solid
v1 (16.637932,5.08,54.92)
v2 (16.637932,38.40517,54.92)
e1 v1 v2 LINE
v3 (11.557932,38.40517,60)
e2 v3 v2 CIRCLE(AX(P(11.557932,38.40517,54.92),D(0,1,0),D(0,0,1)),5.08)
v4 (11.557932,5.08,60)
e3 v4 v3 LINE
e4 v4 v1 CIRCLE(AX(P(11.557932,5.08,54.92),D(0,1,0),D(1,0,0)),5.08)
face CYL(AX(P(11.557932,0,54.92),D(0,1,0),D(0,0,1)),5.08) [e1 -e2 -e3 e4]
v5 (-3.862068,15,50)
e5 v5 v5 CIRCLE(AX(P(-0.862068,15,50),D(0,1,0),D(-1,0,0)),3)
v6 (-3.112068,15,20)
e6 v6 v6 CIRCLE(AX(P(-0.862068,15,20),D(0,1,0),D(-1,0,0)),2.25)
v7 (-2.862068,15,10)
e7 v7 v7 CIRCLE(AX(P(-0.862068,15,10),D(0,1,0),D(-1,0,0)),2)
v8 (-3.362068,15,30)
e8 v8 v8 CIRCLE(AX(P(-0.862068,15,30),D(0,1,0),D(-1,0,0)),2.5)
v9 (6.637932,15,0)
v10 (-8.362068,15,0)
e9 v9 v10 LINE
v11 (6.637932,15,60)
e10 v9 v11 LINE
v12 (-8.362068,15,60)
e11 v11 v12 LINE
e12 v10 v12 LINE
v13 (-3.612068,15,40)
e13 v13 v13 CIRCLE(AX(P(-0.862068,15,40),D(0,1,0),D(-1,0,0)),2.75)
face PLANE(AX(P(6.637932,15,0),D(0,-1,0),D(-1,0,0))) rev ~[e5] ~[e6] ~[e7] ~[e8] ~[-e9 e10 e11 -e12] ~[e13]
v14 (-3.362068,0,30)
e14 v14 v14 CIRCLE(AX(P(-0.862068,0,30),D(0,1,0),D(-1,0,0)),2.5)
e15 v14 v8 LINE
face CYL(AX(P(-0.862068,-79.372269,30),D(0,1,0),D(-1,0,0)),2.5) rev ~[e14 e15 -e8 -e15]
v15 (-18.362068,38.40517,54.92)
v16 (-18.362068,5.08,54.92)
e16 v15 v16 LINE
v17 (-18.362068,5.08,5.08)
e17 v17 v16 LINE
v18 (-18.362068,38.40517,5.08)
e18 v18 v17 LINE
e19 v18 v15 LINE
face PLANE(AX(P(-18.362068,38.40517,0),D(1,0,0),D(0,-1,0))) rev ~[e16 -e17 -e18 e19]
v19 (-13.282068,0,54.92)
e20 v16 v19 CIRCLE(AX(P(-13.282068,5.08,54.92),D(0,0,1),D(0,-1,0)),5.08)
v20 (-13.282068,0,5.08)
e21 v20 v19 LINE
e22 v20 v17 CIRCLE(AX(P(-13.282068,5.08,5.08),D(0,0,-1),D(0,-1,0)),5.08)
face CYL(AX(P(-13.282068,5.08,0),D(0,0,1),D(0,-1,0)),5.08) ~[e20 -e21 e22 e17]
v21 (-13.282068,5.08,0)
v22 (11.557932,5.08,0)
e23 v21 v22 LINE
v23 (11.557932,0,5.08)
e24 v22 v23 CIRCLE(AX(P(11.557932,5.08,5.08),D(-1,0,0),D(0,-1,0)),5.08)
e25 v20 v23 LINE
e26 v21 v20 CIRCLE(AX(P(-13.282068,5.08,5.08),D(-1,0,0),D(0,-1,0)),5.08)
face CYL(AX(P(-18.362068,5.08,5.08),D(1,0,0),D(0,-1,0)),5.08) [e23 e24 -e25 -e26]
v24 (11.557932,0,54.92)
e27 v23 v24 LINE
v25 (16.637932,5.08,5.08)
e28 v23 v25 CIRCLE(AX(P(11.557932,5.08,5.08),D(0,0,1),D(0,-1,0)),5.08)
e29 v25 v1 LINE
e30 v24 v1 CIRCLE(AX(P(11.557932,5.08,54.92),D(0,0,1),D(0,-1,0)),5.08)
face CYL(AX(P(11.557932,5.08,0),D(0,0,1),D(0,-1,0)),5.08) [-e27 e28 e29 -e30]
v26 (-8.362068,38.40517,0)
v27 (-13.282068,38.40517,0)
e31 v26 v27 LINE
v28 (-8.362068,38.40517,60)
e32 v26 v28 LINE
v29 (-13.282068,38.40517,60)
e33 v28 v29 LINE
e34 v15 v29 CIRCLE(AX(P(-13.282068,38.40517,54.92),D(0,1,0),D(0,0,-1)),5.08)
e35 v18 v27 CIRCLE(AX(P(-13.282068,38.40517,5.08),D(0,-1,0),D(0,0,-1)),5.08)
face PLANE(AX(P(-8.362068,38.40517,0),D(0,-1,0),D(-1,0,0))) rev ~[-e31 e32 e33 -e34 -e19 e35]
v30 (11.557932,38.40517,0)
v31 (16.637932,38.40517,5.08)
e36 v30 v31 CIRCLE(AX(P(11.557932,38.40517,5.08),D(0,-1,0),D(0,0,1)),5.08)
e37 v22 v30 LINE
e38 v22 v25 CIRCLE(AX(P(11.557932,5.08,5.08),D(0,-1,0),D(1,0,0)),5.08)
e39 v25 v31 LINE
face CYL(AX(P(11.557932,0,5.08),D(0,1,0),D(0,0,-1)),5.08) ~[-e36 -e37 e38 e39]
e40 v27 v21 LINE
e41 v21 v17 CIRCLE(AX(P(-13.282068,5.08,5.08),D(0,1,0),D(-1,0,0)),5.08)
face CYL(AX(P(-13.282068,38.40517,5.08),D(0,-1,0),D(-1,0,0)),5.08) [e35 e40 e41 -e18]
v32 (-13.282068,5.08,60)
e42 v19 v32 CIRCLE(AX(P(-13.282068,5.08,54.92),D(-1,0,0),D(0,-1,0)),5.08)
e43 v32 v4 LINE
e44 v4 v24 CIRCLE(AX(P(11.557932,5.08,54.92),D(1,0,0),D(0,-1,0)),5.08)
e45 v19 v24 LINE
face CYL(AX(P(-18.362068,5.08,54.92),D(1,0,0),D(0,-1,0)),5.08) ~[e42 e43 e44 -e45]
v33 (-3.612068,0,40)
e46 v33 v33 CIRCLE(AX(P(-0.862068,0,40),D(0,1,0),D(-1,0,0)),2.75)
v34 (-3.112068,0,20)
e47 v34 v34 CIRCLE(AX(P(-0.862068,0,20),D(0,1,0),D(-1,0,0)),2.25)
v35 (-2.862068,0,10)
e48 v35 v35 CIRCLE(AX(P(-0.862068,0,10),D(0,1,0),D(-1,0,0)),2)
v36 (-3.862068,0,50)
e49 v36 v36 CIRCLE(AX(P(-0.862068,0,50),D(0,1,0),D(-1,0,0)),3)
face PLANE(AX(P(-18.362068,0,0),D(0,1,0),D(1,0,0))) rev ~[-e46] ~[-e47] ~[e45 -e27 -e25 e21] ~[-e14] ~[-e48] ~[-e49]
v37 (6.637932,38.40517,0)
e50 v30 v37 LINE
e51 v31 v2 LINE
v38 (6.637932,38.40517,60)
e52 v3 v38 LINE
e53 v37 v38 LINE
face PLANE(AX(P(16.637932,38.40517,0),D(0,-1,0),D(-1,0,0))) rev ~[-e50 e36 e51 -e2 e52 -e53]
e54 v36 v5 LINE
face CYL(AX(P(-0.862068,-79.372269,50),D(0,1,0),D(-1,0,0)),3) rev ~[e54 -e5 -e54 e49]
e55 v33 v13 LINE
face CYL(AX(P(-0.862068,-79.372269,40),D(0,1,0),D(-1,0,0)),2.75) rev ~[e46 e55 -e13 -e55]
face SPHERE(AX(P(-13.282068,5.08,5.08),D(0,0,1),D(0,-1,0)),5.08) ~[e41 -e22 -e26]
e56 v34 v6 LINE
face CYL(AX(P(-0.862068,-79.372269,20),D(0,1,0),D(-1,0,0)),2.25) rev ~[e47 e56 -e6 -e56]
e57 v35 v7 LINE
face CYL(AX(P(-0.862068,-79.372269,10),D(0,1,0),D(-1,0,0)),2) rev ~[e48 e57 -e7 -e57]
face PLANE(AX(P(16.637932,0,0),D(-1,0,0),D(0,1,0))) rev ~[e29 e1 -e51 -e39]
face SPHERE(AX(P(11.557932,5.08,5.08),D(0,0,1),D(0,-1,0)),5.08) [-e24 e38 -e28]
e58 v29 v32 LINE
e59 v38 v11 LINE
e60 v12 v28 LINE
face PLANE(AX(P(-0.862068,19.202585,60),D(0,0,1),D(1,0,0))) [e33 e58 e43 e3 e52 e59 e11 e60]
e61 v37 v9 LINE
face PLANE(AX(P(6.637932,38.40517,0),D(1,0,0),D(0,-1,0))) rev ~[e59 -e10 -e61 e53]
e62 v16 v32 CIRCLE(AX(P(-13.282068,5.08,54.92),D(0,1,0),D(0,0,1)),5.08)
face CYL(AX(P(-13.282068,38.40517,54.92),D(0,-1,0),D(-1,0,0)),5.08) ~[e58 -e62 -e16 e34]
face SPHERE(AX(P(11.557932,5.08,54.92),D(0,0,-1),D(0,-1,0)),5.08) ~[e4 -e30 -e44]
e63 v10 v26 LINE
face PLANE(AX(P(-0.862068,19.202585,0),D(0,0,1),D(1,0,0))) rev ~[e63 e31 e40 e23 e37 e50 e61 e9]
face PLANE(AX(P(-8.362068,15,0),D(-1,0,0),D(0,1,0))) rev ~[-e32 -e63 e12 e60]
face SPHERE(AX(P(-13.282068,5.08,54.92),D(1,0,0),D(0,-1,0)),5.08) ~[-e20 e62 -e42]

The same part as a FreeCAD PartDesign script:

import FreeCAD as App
import Part
import Sketcher
from FreeCAD import Vector
Q = App.Units.Quantity


def edges_at(feature, points):
    """Names of the edges that pass closest to the given points."""
    edges = feature.Shape.Edges
    near = lambda p: min(range(len(edges)), key=lambda i: edges[i].distToShape(Part.Vertex(*p))[0])
    return sorted({f"Edge{near(p) + 1}" for p in points})


def add_polygon(sketch, points):
    """Adds a closed chain of lines whose ends are joined by coincident constraints."""
    first, n = sketch.GeometryCount, len(points)
    for a, b in zip(points, points[1:] + points[:1]):
        sketch.addGeometry(Part.LineSegment(App.Vector(*a, 0), App.Vector(*b, 0)), False)
    for i in range(n):
        sketch.addConstraint(Sketcher.Constraint("Coincident", first + i, 2, first + (i + 1) % n, 1))

doc = App.newDocument("Part")
params = doc.addObject("Spreadsheet::Sheet", "Params")
for row, (alias, value) in enumerate([
    ("sketch1_width", "35 mm"),
    ("sketch1_width2", "10 mm"),
    ("pad1_length", "60 mm"),
    ("sketch2_diameter", "4 mm"),
    ("hole_diameter", "4 mm"),
    ("sketch3_diameter", "4.5 mm"),
    ("hole2_diameter", "4.5 mm"),
    ("sketch4_diameter", "5 mm"),
    ("hole3_diameter", "5 mm"),
    ("sketch5_diameter", "5.5 mm"),
    ("hole4_diameter", "5.5 mm"),
    ("sketch6_diameter", "6 mm"),
    ("hole5_diameter", "6 mm"),
    ("fillet_radius", "5.08 mm"),
], start=1):
    params.set(f"A{row}", alias)
    params.set(f"B{row}", "=" + value)
    params.setAlias(f"B{row}", alias)

body = doc.addObject("PartDesign::Body", "Body")

sketch1 = doc.addObject("Sketcher::SketchObject", "Sketch")
body.addObject(sketch1)
sketch1.AttachmentSupport = (doc.XY_Plane, [""])
sketch1.MapMode = "FlatFace"
add_polygon(sketch1, [(-18.362068, 0), (16.637932, 0), (16.637932, 38.40517), (6.637932, 38.40517), (6.637932, 15), (-8.362068, 15), (-8.362068, 38.40517), (-18.362068, 38.40517)])
sketch1.addConstraint([
    Sketcher.Constraint("Horizontal", 0),
    Sketcher.Constraint("Vertical", 1),
    Sketcher.Constraint("Horizontal", 2),
    Sketcher.Constraint("Vertical", 3),
    Sketcher.Constraint("Horizontal", 4),
    Sketcher.Constraint("Vertical", 5),
    Sketcher.Constraint("Horizontal", 6),
    Sketcher.Constraint("Vertical", 7),
    Sketcher.Constraint("PointOnObject", 0, 2, -1),
    Sketcher.Constraint("Horizontal", 2, 2, 5, 2),
    Sketcher.Constraint("Equal", 2, 6),
    Sketcher.Constraint("DistanceX", 0, 1, 0, 2, Q("35 mm")),
    Sketcher.Constraint("DistanceX", 2, 2, 2, 1, Q("10 mm")),
    Sketcher.Constraint("DistanceY", -1, 1, 3, 2, Q("15 mm")),
    Sketcher.Constraint("DistanceY", 1, 1, 1, 2, Q("38.40517 mm")),
    Sketcher.Constraint("DistanceX", -1, 1, 0, 2, Q("16.637932 mm")),
])
sketch1.setExpression("Constraints[19]", "Params.sketch1_width")
sketch1.setExpression("Constraints[20]", "Params.sketch1_width2")
pad1 = doc.addObject("PartDesign::Pad", "Pad")
body.addObject(pad1)
pad1.Profile = sketch1
pad1.setExpression("Length", "Params.pad1_length")

sketch2 = doc.addObject("Sketcher::SketchObject", "Sketch001")
body.addObject(sketch2)
sketch2.AttachmentSupport = (doc.XZ_Plane, [""])
sketch2.MapMode = "FlatFace"
sketch2.addGeometry(Part.Circle(Vector(-0.862068, 10, 0), Vector(0, 0, 1), 2), False)
sketch2.addConstraint([
    Sketcher.Constraint("Diameter", 0, Q("4 mm")),
    Sketcher.Constraint("DistanceY", -1, 1, 0, 3, Q("10 mm")),
    Sketcher.Constraint("DistanceX", 0, 3, -1, 1, Q("0.862068 mm")),
])
sketch2.setExpression("Constraints[0]", "Params.sketch2_diameter")
doc.recompute()
hole = doc.addObject("PartDesign::Hole", "Hole")
body.addObject(hole)
hole.Profile = sketch2
hole.ThreadType = "None"
hole.setExpression("Diameter", "Params.hole_diameter")
hole.DepthType = "ThroughAll"

sketch3 = doc.addObject("Sketcher::SketchObject", "Sketch002")
body.addObject(sketch3)
sketch3.AttachmentSupport = (doc.XZ_Plane, [""])
sketch3.MapMode = "FlatFace"
sketch3.addGeometry(Part.Circle(Vector(-0.862068, 20, 0), Vector(0, 0, 1), 2.25), False)
sketch3.addConstraint([
    Sketcher.Constraint("Diameter", 0, Q("4.5 mm")),
    Sketcher.Constraint("DistanceY", -1, 1, 0, 3, Q("20 mm")),
    Sketcher.Constraint("DistanceX", 0, 3, -1, 1, Q("0.862068 mm")),
])
sketch3.setExpression("Constraints[0]", "Params.sketch3_diameter")
doc.recompute()
hole2 = doc.addObject("PartDesign::Hole", "Hole001")
body.addObject(hole2)
hole2.Profile = sketch3
hole2.ThreadType = "None"
hole2.setExpression("Diameter", "Params.hole2_diameter")
hole2.DepthType = "ThroughAll"

sketch4 = doc.addObject("Sketcher::SketchObject", "Sketch003")
body.addObject(sketch4)
sketch4.AttachmentSupport = (doc.XZ_Plane, [""])
sketch4.MapMode = "FlatFace"
sketch4.addGeometry(Part.Circle(Vector(-0.862068, 30, 0), Vector(0, 0, 1), 2.5), False)
sketch4.addConstraint([
    Sketcher.Constraint("Diameter", 0, Q("5 mm")),
    Sketcher.Constraint("DistanceY", -1, 1, 0, 3, Q("30 mm")),
    Sketcher.Constraint("DistanceX", 0, 3, -1, 1, Q("0.862068 mm")),
])
sketch4.setExpression("Constraints[0]", "Params.sketch4_diameter")
doc.recompute()
hole3 = doc.addObject("PartDesign::Hole", "Hole002")
body.addObject(hole3)
hole3.Profile = sketch4
hole3.ThreadType = "None"
hole3.setExpression("Diameter", "Params.hole3_diameter")
hole3.DepthType = "ThroughAll"

sketch5 = doc.addObject("Sketcher::SketchObject", "Sketch004")
body.addObject(sketch5)
sketch5.AttachmentSupport = (doc.XZ_Plane, [""])
sketch5.MapMode = "FlatFace"
sketch5.addGeometry(Part.Circle(Vector(-0.862068, 40, 0), Vector(0, 0, 1), 2.75), False)
sketch5.addConstraint([
    Sketcher.Constraint("Diameter", 0, Q("5.5 mm")),
    Sketcher.Constraint("DistanceY", -1, 1, 0, 3, Q("40 mm")),
    Sketcher.Constraint("DistanceX", 0, 3, -1, 1, Q("0.862068 mm")),
])
sketch5.setExpression("Constraints[0]", "Params.sketch5_diameter")
doc.recompute()
hole4 = doc.addObject("PartDesign::Hole", "Hole003")
body.addObject(hole4)
hole4.Profile = sketch5
hole4.ThreadType = "None"
hole4.setExpression("Diameter", "Params.hole4_diameter")
hole4.DepthType = "ThroughAll"

sketch6 = doc.addObject("Sketcher::SketchObject", "Sketch005")
body.addObject(sketch6)
sketch6.AttachmentSupport = (doc.XZ_Plane, [""])
sketch6.MapMode = "FlatFace"
sketch6.addGeometry(Part.Circle(Vector(-0.862068, 50, 0), Vector(0, 0, 1), 3), False)
sketch6.addConstraint([
    Sketcher.Constraint("Diameter", 0, Q("6 mm")),
    Sketcher.Constraint("DistanceY", -1, 1, 0, 3, Q("50 mm")),
    Sketcher.Constraint("DistanceX", 0, 3, -1, 1, Q("0.862068 mm")),
])
sketch6.setExpression("Constraints[0]", "Params.sketch6_diameter")
doc.recompute()
hole5 = doc.addObject("PartDesign::Hole", "Hole004")
body.addObject(hole5)
hole5.Profile = sketch6
hole5.ThreadType = "None"
hole5.setExpression("Diameter", "Params.hole5_diameter")
hole5.DepthType = "ThroughAll"
doc.recompute()

fillet = doc.addObject("PartDesign::Fillet", "Fillet")
body.addObject(fillet)
fillet.Base = (hole5, edges_at(hole5, [
    (16.638, 0, 30),
    (-0.862, 0, 60),
    (-18.362, 0, 30),
    (-0.862, 0, 0),
    (-18.362, 19.203, 60),
    (16.638, 19.203, 60),
    (-18.362, 19.203, 0),
    (16.638, 19.203, 0),
]))
fillet.setExpression("Radius", "Params.fillet_radius")

doc.recompute()
